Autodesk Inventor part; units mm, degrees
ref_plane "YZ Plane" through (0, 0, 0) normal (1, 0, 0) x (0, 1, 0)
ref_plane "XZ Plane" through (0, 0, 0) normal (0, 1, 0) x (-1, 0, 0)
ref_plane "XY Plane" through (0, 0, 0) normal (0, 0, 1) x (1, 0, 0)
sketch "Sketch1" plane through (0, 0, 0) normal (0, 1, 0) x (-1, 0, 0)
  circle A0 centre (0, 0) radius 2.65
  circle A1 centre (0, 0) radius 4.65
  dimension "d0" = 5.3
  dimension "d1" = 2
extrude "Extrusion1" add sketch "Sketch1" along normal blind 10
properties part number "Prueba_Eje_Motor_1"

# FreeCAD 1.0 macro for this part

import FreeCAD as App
import Part
import Sketcher
Q = App.Units.Quantity

doc = App.newDocument("Part")
body = doc.addObject("PartDesign::Body", "Body")

sketch1 = doc.addObject("Sketcher::SketchObject", "Sketch")
body.addObject(sketch1)
sketch1.AttachmentSupport = (doc.XZ_Plane, [""])
sketch1.MapMode = "FlatFace"
sketch1.addGeometry([
    Part.Circle(App.Vector(0, 0, 0), App.Vector(0, 0, 1), 4.7),
    Part.Circle(App.Vector(0, 0, 0), App.Vector(0, 0, 1), 2.6),
], False)
sketch1.addConstraint([
    Sketcher.Constraint("Coincident", 0, 3, -1, 1),
    Sketcher.Constraint("Coincident", 1, 3, -1, 1),
    Sketcher.Constraint("Diameter", 1, Q("5.3 mm")),
    Sketcher.Constraint("Diameter", 0, Q("9.3 mm")),
])
pad1 = doc.addObject("PartDesign::Pad", "Pad")
body.addObject(pad1)
pad1.Profile = sketch1
pad1.Length = 10
pad1.Reversed = True

doc.recompute()
